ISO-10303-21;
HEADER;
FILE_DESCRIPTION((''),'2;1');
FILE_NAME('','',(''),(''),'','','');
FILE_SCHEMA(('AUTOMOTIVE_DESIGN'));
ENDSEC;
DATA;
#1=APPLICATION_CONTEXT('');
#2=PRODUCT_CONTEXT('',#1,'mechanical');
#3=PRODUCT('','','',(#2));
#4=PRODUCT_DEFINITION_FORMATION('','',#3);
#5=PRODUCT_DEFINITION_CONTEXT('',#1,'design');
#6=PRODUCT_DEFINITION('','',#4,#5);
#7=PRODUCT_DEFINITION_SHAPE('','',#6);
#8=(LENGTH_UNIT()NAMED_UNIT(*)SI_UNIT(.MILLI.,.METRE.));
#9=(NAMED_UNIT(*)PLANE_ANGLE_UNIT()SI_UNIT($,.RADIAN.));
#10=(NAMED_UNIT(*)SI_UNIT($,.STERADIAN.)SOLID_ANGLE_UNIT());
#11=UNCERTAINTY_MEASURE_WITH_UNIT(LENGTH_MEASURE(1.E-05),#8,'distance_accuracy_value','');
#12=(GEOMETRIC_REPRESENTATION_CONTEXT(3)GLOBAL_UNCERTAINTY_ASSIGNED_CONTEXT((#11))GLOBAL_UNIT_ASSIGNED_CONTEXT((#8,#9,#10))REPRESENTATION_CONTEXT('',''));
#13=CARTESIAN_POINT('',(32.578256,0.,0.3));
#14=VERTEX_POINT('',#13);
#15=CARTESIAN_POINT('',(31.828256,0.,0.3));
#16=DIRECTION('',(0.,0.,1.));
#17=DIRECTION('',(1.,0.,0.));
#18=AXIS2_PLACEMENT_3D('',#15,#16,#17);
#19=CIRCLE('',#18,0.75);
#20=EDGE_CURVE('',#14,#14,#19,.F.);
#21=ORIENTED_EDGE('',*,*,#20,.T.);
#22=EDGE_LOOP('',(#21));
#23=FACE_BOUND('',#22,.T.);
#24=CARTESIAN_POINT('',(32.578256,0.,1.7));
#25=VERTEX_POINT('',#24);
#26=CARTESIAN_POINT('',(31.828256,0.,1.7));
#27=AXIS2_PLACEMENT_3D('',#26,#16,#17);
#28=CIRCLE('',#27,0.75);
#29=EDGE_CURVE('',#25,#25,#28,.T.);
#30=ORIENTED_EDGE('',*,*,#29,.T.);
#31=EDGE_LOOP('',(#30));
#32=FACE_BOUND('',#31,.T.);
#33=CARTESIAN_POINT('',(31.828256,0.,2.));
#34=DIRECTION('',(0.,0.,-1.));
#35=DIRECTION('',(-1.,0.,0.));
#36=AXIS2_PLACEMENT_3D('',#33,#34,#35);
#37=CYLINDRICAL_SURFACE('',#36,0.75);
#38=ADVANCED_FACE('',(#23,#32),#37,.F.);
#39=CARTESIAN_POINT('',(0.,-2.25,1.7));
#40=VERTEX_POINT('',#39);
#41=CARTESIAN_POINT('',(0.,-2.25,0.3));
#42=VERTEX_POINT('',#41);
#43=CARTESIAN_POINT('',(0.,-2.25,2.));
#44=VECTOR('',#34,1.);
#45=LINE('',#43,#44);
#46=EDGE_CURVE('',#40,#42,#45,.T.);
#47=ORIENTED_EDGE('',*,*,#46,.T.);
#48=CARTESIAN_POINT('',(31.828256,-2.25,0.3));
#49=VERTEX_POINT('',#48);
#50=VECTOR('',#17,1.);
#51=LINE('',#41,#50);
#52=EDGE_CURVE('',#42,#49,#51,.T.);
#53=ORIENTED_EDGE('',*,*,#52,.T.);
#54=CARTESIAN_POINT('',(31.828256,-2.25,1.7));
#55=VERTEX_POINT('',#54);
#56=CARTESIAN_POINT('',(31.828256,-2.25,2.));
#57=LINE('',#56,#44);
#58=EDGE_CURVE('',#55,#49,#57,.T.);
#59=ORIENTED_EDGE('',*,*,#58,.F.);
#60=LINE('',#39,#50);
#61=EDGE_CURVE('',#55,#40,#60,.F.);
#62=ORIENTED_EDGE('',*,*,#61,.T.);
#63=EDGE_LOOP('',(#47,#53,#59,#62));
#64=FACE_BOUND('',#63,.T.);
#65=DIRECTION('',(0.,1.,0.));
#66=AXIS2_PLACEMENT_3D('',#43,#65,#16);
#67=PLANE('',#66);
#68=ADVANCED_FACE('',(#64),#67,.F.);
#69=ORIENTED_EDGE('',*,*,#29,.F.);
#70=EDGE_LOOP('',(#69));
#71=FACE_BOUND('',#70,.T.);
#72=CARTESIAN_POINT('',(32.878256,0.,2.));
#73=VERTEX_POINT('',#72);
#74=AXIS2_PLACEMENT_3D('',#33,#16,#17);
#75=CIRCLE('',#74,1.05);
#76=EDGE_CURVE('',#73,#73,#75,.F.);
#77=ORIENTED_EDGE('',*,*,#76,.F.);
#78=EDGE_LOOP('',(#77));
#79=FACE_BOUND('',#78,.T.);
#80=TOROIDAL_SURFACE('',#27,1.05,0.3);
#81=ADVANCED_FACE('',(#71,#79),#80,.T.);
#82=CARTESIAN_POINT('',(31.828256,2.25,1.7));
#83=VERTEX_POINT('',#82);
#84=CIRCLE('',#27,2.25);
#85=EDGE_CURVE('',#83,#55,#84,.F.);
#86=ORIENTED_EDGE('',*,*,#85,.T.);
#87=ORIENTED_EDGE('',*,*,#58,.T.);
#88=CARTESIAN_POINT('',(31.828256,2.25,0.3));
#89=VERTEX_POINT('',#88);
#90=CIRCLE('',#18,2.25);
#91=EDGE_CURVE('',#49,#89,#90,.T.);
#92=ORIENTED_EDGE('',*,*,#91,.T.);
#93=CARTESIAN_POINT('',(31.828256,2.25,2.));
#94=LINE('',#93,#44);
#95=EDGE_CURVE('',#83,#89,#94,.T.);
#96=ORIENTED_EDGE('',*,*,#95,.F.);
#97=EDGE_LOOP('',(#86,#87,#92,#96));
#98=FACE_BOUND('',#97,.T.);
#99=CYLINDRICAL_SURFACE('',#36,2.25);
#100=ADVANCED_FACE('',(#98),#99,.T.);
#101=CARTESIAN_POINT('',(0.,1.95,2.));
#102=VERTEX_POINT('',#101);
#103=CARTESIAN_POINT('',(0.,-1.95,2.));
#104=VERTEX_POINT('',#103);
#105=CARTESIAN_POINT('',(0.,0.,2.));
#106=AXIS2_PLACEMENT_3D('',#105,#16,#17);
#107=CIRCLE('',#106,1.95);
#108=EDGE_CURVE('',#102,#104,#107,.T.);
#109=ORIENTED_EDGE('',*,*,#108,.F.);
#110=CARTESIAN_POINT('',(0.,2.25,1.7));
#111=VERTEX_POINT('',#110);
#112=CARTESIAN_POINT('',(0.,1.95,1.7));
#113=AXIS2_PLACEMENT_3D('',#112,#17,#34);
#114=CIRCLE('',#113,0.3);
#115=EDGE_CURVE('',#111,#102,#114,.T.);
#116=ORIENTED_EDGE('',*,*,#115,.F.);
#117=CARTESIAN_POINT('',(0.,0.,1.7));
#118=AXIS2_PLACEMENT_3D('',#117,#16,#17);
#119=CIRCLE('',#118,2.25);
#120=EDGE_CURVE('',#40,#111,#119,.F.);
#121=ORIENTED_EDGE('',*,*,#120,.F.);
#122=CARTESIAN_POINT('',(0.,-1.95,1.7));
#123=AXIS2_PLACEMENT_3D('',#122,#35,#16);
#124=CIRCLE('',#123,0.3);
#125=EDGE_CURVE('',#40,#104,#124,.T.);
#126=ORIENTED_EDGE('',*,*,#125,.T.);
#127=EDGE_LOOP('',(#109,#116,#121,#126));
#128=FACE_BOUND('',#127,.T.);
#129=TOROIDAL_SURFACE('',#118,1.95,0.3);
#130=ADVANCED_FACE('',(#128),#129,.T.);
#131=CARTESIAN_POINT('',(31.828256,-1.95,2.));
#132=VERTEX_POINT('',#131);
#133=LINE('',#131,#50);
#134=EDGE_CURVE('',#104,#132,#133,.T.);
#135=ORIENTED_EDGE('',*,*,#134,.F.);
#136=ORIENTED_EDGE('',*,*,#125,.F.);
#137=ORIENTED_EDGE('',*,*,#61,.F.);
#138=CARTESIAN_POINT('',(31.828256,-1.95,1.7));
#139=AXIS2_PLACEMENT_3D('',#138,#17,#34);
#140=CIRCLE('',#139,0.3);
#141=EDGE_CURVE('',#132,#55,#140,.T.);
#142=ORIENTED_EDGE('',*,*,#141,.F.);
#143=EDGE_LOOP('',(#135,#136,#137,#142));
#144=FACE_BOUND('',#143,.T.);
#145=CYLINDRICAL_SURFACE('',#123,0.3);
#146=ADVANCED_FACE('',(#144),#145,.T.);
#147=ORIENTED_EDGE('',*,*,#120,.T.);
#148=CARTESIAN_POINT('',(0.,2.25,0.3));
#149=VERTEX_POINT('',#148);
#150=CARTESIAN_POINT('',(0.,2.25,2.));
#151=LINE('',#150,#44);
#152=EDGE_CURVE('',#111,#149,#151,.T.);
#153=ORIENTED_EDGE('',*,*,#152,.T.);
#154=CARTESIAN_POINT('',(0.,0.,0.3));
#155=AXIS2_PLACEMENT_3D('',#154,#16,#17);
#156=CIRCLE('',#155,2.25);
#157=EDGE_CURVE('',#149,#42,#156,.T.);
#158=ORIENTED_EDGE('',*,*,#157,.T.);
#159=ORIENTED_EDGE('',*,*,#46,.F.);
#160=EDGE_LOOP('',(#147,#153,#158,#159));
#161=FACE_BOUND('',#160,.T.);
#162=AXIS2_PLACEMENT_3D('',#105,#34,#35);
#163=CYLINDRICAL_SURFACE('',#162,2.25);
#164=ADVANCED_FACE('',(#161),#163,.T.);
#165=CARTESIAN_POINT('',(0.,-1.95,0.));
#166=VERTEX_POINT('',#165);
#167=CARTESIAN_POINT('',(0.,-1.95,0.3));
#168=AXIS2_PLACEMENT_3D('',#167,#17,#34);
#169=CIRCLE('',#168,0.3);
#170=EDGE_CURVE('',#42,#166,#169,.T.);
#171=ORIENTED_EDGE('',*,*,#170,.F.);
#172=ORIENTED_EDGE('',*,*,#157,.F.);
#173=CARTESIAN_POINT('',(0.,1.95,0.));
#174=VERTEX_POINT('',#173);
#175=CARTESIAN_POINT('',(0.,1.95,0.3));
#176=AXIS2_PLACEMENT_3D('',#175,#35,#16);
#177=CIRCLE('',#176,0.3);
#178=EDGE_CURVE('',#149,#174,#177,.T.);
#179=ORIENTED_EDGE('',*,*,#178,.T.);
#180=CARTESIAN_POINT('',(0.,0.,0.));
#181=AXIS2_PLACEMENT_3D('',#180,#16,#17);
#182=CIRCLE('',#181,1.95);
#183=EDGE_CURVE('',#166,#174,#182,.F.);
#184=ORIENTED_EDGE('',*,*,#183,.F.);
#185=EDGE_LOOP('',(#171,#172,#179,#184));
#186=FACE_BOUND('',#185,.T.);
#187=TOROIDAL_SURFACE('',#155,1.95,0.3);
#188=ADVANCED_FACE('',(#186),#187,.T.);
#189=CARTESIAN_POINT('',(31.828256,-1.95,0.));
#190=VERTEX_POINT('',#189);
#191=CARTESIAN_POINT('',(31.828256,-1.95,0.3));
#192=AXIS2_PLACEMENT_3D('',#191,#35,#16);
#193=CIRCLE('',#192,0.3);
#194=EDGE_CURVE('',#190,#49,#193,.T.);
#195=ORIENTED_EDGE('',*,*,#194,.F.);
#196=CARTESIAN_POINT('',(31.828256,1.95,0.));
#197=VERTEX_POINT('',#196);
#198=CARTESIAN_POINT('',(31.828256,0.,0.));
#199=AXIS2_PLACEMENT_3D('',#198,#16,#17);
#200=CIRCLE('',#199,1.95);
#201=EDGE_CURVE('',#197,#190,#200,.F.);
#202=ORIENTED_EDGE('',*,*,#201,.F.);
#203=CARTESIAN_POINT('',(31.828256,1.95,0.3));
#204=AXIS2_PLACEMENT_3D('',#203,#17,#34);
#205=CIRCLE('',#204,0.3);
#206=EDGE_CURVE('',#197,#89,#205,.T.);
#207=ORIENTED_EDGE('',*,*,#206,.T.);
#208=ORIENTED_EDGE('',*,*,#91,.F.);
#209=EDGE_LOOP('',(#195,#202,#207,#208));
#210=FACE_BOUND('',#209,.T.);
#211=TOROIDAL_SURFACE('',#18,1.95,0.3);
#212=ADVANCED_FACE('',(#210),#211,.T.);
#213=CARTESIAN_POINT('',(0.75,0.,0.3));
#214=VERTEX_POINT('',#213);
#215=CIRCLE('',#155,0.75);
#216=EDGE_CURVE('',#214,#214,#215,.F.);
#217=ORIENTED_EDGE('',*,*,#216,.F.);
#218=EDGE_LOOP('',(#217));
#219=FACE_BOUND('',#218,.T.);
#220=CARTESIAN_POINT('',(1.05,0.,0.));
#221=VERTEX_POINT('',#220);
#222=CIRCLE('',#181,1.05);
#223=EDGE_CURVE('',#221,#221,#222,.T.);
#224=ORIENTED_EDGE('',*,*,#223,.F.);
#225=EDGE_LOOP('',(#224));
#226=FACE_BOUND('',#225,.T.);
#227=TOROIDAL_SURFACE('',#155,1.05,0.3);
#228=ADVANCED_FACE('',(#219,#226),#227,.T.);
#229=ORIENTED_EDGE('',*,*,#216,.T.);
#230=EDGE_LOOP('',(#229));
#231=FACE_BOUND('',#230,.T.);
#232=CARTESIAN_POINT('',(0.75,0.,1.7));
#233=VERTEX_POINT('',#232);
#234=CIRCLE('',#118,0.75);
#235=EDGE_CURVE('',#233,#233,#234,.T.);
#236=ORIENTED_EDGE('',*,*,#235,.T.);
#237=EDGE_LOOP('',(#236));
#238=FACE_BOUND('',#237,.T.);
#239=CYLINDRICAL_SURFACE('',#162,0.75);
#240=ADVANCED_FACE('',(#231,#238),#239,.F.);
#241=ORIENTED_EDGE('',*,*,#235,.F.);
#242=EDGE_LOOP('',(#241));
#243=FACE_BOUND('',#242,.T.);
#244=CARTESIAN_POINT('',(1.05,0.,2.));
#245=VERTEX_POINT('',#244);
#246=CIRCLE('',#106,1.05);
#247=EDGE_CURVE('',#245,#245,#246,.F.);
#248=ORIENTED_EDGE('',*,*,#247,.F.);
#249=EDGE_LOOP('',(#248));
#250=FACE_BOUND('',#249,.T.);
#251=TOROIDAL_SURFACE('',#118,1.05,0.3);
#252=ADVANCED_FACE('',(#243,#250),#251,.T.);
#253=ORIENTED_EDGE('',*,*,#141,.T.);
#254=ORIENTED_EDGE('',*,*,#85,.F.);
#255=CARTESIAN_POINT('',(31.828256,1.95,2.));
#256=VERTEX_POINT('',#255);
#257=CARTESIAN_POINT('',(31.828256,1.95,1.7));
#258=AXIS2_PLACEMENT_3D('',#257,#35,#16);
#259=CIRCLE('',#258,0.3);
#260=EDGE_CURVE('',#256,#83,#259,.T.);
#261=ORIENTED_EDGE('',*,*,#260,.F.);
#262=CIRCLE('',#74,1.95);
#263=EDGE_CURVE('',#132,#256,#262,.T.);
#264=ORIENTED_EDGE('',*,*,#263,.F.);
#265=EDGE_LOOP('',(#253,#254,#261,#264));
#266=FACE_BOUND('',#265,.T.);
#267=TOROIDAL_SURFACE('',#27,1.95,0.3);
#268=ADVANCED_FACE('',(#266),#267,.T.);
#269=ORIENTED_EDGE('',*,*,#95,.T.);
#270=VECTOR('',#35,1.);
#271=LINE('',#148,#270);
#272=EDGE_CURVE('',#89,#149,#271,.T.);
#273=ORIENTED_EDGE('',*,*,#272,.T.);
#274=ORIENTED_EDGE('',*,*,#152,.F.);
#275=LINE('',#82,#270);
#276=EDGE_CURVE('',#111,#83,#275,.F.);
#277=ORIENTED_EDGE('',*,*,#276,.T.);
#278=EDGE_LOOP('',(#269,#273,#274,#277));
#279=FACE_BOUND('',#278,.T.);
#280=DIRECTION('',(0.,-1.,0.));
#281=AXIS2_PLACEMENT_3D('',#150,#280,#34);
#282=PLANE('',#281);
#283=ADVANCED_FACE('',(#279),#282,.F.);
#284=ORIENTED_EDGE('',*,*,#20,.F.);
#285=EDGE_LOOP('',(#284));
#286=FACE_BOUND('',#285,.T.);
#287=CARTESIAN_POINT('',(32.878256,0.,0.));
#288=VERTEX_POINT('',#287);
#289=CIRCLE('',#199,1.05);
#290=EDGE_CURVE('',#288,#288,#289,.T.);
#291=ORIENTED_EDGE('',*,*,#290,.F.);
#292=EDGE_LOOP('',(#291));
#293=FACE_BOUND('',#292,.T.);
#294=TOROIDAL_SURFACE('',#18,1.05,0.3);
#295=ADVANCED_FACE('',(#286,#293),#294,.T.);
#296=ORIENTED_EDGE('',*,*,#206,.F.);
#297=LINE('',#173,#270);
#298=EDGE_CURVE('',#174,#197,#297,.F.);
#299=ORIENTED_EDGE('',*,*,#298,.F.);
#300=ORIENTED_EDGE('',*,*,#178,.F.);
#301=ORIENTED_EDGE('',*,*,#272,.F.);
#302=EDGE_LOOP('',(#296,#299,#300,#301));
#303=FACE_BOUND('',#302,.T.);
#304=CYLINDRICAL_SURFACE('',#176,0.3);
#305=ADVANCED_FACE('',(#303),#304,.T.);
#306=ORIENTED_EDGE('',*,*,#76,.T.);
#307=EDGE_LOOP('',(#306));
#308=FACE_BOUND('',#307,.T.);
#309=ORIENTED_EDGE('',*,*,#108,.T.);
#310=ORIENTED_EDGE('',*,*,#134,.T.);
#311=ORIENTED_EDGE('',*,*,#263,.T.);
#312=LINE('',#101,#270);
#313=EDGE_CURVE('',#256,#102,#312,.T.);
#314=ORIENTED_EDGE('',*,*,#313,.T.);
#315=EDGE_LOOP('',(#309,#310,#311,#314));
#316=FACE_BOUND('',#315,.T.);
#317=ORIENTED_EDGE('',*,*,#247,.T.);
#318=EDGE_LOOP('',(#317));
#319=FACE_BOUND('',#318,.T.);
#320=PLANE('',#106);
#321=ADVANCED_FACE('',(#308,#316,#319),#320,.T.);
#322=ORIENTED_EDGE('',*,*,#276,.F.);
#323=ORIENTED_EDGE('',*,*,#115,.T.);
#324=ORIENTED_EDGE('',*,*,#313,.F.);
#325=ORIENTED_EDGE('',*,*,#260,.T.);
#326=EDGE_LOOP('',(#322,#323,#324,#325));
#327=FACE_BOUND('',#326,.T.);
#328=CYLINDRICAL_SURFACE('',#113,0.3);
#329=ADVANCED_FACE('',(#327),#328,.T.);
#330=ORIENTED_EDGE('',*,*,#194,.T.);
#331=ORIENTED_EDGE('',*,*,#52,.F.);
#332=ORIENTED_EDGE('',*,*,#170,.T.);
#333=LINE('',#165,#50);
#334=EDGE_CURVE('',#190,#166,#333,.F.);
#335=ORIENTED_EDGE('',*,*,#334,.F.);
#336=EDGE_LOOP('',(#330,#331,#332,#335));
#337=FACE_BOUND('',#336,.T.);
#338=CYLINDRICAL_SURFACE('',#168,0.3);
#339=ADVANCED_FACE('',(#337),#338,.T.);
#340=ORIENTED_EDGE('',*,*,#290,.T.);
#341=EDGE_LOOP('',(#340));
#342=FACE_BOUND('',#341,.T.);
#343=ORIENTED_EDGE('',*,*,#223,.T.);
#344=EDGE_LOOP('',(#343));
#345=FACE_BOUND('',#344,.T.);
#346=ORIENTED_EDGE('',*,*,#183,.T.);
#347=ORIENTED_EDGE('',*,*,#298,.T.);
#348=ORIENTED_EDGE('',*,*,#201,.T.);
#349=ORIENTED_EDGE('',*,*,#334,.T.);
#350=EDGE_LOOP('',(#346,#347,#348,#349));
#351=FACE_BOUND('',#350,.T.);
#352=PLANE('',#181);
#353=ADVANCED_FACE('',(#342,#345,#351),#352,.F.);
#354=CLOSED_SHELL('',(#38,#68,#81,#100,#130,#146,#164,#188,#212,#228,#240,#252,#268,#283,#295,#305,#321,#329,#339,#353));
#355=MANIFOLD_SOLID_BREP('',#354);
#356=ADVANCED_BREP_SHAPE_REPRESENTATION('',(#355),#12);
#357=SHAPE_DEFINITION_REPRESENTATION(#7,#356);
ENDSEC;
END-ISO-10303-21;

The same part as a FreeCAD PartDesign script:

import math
import FreeCAD as App
import Part
import Sketcher
from FreeCAD import Vector


def edges_at(feature, points):
    """Names of the edges that pass closest to the given points."""
    edges = feature.Shape.Edges
    near = lambda p: min(range(len(edges)), key=lambda i: edges[i].distToShape(Part.Vertex(*p))[0])
    return sorted({f"Edge{near(p) + 1}" for p in points})

doc = App.newDocument("Part")
body = doc.addObject("PartDesign::Body", "Body")

sketch1 = body.newObject("Sketcher::SketchObject", "Sketch")
sketch1.AttachmentSupport = (doc.getObject("XY_Plane"), [""])
sketch1.MapMode = "FlatFace"
sketch1.addGeometry([
    Part.LineSegment(Vector(31.828256, 2.25, 0), Vector(0, 2.25, 0)),
    Part.ArcOfCircle(Part.Circle(Vector(0, 0, 0), Vector(0, 0, 1), 2.25), math.radians(90), math.radians(270)),
    Part.LineSegment(Vector(0, -2.25, 0), Vector(31.828256, -2.25, 0)),
    Part.ArcOfCircle(Part.Circle(Vector(31.828256, 0, 0), Vector(0, 0, 1), 2.25), math.radians(-90), math.radians(90)),
    Part.Circle(Vector(31.828256, 0, 0), Vector(0, 0, 1), 0.75),
    Part.Circle(Vector(0, 0, 0), Vector(0, 0, 1), 0.75),
], False)
sketch1.addConstraint([
    Sketcher.Constraint("Tangent", 0, 2, 1, 1),
    Sketcher.Constraint("Tangent", 1, 2, 2, 1),
    Sketcher.Constraint("Tangent", 2, 2, 3, 1),
    Sketcher.Constraint("Tangent", 3, 2, 0, 1),
    Sketcher.Constraint("Horizontal", 0),
    Sketcher.Constraint("Horizontal", 2),
    Sketcher.Constraint("Coincident", 1, 3, -1, 1),
    Sketcher.Constraint("Coincident", 5, 3, -1, 1),
    Sketcher.Constraint("Coincident", 4, 3, 3, 3),
    Sketcher.Constraint("Equal", 4, 5),
    Sketcher.Constraint("Diameter", 4, 1.5),
    Sketcher.Constraint("Radius", 1, 2.25),
    Sketcher.Constraint("DistanceX", 0, 2, 0, 1, 31.828256),
])
pad1 = body.newObject("PartDesign::Pad", "Pad")
pad1.Profile = sketch1
pad1.Length = 2
doc.recompute()

fillet = body.newObject("PartDesign::Fillet", "Fillet")
fillet.Base = (pad1, edges_at(pad1, [
    (34.078, 0, 2),
    (-0.75, 0, 0),
    (-0.75, 0, 2),
    (15.914, 2.25, 2),
    (31.078, 0, 0),
    (31.078, 0, 2),
    (-2.25, 0, 2),
    (15.914, 2.25, 0),
    (34.078, 0, 0),
    (15.914, -2.25, 0),
    (-2.25, 0, 0),
    (15.914, -2.25, 2),
]))
fillet.Radius = 0.3

doc.recompute()
